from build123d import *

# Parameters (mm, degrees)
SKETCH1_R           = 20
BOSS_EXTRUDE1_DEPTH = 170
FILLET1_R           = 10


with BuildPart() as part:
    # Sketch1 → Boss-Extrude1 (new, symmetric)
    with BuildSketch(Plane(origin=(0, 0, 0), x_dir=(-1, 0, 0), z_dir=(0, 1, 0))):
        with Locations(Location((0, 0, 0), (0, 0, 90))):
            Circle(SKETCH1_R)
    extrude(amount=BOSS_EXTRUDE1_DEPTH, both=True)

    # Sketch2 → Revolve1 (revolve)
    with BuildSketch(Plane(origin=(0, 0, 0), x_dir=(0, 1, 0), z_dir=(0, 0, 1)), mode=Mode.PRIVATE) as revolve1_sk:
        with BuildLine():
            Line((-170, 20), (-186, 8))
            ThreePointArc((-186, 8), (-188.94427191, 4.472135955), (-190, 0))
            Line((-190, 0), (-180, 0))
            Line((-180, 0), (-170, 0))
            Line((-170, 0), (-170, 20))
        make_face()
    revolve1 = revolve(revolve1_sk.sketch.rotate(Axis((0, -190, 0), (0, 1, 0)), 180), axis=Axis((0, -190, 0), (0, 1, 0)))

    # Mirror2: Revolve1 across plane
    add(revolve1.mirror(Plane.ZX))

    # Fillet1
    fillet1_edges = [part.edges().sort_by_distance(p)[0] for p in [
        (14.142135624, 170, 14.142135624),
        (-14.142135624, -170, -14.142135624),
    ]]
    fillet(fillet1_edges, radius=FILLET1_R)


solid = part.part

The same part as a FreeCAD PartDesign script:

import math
import FreeCAD as App
import Part
import Sketcher

V = App.Vector
Q = App.Units.Quantity


def edges_at(feature, points):
    """Names of the edges that pass closest to the given points."""
    edges = feature.Shape.Edges
    near = lambda p: min(range(len(edges)), key=lambda i: edges[i].distToShape(Part.Vertex(*p))[0])
    return sorted({f"Edge{near(p) + 1}" for p in points})

doc = App.newDocument("Part")
body = doc.addObject("PartDesign::Body", "Body")

sketch1 = body.newObject("Sketcher::SketchObject", "Sketch")
sketch1.AttachmentSupport = (doc.getObject("XZ_Plane"), [""])
sketch1.MapMode = "FlatFace"
sketch1.addGeometry(Part.Circle(V(0, 0, 0), V(0, 0, 1), 20), False)
sketch1.addConstraint(Sketcher.Constraint("Coincident", 0, 3, -1, 1))
sketch1.addConstraint(Sketcher.Constraint("Diameter", 0, Q("40 mm")))
pad1 = body.newObject("PartDesign::Pad", "Pad")
pad1.Profile = sketch1
pad1.Length = 340
pad1.Midplane = True

sketch2 = body.newObject("Sketcher::SketchObject", "Sketch001")
sketch2.AttachmentSupport = (doc.getObject("XY_Plane"), [""])
sketch2.MapMode = "FlatFace"
sketch2.addGeometry(Part.LineSegment(V(-20, -170, 0), V(-8, -186, 0)), False)
sketch2.addGeometry(Part.ArcOfCircle(Part.Circle(V(0, -180, 0), V(0, 0, 1), 10), math.radians(-143), math.radians(-90)), False)
sketch2.addGeometry(Part.LineSegment(V(0, -190, 0), V(0, -170, 0)), False)
sketch2.addGeometry(Part.LineSegment(V(0, -170, 0), V(-20, -170, 0)), False)
sketch2.addConstraint(Sketcher.Constraint("Tangent", 0, 2, 1, 1))
sketch2.addConstraint(Sketcher.Constraint("Coincident", 1, 2, 2, 1))
sketch2.addConstraint(Sketcher.Constraint("Coincident", 2, 2, 3, 1))
sketch2.addConstraint(Sketcher.Constraint("Coincident", 3, 2, 0, 1))
sketch2.addConstraint(Sketcher.Constraint("Vertical", 2))
sketch2.addConstraint(Sketcher.Constraint("Horizontal", 3))
sketch2.addConstraint(Sketcher.Constraint("PointOnObject", 1, 3, -2))
sketch2.addConstraint(Sketcher.Constraint("PointOnObject", 1, 2, -2))
sketch2.addConstraint(Sketcher.Constraint("Equal", 3, 2))
sketch2.addConstraint(Sketcher.Constraint("Radius", 1, Q("10 mm")))
sketch2.addConstraint(Sketcher.Constraint("DistanceX", 3, 2, 3, 1, Q("20 mm")))
sketch2.addConstraint(Sketcher.Constraint("DistanceY", 1, 3, -1, 1, Q("180 mm")))
revolution = body.newObject("PartDesign::Revolution", "Revolution")
revolution.Profile = sketch2
revolution.ReferenceAxis = (sketch2, ["V_Axis"])
revolution.Angle = 360
doc.recompute()

mirrored = body.newObject("PartDesign::Mirrored", "Mirrored")
mirrored.Originals = [revolution]
mirrored.MirrorPlane = (doc.getObject("XZ_Plane"), [""])
body.Tip = mirrored
doc.recompute()

fillet = body.newObject("PartDesign::Fillet", "Fillet")
fillet.Base = (mirrored, edges_at(mirrored, [(14.142, 170, 14.142), (-14.142, -170, -14.142)]))
fillet.Radius = 10

doc.recompute()
